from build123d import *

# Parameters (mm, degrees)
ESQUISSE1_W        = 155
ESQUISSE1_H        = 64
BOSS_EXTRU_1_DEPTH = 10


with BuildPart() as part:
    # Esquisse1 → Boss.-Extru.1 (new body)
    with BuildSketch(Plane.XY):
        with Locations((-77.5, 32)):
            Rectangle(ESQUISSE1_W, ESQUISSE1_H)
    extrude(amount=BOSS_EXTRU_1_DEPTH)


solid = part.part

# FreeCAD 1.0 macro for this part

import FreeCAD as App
import Part
import Sketcher


def add_polygon(sketch, points):
    """Adds a closed chain of lines whose ends are joined by coincident constraints."""
    first, n = sketch.GeometryCount, len(points)
    for a, b in zip(points, points[1:] + points[:1]):
        sketch.addGeometry(Part.LineSegment(App.Vector(*a, 0), App.Vector(*b, 0)), False)
    for i in range(n):
        sketch.addConstraint(Sketcher.Constraint("Coincident", first + i, 2, first + (i + 1) % n, 1))

doc = App.newDocument("Part")
body = doc.addObject("PartDesign::Body", "Body")

sketch1 = body.newObject("Sketcher::SketchObject", "Sketch")
sketch1.AttachmentSupport = (doc.getObject("XY_Plane"), [""])
sketch1.MapMode = "FlatFace"
add_polygon(sketch1, [(-155, 64), (-155, 0), (0, 0), (0, 64)])
sketch1.addConstraint([
    Sketcher.Constraint("Vertical", 0),
    Sketcher.Constraint("Horizontal", 1),
    Sketcher.Constraint("Vertical", 2),
    Sketcher.Constraint("Horizontal", 3),
    Sketcher.Constraint("Coincident", 1, 2, -1, 1),
    Sketcher.Constraint("DistanceX", 1, 1, 1, 2, 155.0),
    Sketcher.Constraint("DistanceY", 0, 2, 0, 1, 64.0),
])
pad1 = body.newObject("PartDesign::Pad", "Pad")
pad1.Profile = sketch1
pad1.Length = 10

doc.recompute()
